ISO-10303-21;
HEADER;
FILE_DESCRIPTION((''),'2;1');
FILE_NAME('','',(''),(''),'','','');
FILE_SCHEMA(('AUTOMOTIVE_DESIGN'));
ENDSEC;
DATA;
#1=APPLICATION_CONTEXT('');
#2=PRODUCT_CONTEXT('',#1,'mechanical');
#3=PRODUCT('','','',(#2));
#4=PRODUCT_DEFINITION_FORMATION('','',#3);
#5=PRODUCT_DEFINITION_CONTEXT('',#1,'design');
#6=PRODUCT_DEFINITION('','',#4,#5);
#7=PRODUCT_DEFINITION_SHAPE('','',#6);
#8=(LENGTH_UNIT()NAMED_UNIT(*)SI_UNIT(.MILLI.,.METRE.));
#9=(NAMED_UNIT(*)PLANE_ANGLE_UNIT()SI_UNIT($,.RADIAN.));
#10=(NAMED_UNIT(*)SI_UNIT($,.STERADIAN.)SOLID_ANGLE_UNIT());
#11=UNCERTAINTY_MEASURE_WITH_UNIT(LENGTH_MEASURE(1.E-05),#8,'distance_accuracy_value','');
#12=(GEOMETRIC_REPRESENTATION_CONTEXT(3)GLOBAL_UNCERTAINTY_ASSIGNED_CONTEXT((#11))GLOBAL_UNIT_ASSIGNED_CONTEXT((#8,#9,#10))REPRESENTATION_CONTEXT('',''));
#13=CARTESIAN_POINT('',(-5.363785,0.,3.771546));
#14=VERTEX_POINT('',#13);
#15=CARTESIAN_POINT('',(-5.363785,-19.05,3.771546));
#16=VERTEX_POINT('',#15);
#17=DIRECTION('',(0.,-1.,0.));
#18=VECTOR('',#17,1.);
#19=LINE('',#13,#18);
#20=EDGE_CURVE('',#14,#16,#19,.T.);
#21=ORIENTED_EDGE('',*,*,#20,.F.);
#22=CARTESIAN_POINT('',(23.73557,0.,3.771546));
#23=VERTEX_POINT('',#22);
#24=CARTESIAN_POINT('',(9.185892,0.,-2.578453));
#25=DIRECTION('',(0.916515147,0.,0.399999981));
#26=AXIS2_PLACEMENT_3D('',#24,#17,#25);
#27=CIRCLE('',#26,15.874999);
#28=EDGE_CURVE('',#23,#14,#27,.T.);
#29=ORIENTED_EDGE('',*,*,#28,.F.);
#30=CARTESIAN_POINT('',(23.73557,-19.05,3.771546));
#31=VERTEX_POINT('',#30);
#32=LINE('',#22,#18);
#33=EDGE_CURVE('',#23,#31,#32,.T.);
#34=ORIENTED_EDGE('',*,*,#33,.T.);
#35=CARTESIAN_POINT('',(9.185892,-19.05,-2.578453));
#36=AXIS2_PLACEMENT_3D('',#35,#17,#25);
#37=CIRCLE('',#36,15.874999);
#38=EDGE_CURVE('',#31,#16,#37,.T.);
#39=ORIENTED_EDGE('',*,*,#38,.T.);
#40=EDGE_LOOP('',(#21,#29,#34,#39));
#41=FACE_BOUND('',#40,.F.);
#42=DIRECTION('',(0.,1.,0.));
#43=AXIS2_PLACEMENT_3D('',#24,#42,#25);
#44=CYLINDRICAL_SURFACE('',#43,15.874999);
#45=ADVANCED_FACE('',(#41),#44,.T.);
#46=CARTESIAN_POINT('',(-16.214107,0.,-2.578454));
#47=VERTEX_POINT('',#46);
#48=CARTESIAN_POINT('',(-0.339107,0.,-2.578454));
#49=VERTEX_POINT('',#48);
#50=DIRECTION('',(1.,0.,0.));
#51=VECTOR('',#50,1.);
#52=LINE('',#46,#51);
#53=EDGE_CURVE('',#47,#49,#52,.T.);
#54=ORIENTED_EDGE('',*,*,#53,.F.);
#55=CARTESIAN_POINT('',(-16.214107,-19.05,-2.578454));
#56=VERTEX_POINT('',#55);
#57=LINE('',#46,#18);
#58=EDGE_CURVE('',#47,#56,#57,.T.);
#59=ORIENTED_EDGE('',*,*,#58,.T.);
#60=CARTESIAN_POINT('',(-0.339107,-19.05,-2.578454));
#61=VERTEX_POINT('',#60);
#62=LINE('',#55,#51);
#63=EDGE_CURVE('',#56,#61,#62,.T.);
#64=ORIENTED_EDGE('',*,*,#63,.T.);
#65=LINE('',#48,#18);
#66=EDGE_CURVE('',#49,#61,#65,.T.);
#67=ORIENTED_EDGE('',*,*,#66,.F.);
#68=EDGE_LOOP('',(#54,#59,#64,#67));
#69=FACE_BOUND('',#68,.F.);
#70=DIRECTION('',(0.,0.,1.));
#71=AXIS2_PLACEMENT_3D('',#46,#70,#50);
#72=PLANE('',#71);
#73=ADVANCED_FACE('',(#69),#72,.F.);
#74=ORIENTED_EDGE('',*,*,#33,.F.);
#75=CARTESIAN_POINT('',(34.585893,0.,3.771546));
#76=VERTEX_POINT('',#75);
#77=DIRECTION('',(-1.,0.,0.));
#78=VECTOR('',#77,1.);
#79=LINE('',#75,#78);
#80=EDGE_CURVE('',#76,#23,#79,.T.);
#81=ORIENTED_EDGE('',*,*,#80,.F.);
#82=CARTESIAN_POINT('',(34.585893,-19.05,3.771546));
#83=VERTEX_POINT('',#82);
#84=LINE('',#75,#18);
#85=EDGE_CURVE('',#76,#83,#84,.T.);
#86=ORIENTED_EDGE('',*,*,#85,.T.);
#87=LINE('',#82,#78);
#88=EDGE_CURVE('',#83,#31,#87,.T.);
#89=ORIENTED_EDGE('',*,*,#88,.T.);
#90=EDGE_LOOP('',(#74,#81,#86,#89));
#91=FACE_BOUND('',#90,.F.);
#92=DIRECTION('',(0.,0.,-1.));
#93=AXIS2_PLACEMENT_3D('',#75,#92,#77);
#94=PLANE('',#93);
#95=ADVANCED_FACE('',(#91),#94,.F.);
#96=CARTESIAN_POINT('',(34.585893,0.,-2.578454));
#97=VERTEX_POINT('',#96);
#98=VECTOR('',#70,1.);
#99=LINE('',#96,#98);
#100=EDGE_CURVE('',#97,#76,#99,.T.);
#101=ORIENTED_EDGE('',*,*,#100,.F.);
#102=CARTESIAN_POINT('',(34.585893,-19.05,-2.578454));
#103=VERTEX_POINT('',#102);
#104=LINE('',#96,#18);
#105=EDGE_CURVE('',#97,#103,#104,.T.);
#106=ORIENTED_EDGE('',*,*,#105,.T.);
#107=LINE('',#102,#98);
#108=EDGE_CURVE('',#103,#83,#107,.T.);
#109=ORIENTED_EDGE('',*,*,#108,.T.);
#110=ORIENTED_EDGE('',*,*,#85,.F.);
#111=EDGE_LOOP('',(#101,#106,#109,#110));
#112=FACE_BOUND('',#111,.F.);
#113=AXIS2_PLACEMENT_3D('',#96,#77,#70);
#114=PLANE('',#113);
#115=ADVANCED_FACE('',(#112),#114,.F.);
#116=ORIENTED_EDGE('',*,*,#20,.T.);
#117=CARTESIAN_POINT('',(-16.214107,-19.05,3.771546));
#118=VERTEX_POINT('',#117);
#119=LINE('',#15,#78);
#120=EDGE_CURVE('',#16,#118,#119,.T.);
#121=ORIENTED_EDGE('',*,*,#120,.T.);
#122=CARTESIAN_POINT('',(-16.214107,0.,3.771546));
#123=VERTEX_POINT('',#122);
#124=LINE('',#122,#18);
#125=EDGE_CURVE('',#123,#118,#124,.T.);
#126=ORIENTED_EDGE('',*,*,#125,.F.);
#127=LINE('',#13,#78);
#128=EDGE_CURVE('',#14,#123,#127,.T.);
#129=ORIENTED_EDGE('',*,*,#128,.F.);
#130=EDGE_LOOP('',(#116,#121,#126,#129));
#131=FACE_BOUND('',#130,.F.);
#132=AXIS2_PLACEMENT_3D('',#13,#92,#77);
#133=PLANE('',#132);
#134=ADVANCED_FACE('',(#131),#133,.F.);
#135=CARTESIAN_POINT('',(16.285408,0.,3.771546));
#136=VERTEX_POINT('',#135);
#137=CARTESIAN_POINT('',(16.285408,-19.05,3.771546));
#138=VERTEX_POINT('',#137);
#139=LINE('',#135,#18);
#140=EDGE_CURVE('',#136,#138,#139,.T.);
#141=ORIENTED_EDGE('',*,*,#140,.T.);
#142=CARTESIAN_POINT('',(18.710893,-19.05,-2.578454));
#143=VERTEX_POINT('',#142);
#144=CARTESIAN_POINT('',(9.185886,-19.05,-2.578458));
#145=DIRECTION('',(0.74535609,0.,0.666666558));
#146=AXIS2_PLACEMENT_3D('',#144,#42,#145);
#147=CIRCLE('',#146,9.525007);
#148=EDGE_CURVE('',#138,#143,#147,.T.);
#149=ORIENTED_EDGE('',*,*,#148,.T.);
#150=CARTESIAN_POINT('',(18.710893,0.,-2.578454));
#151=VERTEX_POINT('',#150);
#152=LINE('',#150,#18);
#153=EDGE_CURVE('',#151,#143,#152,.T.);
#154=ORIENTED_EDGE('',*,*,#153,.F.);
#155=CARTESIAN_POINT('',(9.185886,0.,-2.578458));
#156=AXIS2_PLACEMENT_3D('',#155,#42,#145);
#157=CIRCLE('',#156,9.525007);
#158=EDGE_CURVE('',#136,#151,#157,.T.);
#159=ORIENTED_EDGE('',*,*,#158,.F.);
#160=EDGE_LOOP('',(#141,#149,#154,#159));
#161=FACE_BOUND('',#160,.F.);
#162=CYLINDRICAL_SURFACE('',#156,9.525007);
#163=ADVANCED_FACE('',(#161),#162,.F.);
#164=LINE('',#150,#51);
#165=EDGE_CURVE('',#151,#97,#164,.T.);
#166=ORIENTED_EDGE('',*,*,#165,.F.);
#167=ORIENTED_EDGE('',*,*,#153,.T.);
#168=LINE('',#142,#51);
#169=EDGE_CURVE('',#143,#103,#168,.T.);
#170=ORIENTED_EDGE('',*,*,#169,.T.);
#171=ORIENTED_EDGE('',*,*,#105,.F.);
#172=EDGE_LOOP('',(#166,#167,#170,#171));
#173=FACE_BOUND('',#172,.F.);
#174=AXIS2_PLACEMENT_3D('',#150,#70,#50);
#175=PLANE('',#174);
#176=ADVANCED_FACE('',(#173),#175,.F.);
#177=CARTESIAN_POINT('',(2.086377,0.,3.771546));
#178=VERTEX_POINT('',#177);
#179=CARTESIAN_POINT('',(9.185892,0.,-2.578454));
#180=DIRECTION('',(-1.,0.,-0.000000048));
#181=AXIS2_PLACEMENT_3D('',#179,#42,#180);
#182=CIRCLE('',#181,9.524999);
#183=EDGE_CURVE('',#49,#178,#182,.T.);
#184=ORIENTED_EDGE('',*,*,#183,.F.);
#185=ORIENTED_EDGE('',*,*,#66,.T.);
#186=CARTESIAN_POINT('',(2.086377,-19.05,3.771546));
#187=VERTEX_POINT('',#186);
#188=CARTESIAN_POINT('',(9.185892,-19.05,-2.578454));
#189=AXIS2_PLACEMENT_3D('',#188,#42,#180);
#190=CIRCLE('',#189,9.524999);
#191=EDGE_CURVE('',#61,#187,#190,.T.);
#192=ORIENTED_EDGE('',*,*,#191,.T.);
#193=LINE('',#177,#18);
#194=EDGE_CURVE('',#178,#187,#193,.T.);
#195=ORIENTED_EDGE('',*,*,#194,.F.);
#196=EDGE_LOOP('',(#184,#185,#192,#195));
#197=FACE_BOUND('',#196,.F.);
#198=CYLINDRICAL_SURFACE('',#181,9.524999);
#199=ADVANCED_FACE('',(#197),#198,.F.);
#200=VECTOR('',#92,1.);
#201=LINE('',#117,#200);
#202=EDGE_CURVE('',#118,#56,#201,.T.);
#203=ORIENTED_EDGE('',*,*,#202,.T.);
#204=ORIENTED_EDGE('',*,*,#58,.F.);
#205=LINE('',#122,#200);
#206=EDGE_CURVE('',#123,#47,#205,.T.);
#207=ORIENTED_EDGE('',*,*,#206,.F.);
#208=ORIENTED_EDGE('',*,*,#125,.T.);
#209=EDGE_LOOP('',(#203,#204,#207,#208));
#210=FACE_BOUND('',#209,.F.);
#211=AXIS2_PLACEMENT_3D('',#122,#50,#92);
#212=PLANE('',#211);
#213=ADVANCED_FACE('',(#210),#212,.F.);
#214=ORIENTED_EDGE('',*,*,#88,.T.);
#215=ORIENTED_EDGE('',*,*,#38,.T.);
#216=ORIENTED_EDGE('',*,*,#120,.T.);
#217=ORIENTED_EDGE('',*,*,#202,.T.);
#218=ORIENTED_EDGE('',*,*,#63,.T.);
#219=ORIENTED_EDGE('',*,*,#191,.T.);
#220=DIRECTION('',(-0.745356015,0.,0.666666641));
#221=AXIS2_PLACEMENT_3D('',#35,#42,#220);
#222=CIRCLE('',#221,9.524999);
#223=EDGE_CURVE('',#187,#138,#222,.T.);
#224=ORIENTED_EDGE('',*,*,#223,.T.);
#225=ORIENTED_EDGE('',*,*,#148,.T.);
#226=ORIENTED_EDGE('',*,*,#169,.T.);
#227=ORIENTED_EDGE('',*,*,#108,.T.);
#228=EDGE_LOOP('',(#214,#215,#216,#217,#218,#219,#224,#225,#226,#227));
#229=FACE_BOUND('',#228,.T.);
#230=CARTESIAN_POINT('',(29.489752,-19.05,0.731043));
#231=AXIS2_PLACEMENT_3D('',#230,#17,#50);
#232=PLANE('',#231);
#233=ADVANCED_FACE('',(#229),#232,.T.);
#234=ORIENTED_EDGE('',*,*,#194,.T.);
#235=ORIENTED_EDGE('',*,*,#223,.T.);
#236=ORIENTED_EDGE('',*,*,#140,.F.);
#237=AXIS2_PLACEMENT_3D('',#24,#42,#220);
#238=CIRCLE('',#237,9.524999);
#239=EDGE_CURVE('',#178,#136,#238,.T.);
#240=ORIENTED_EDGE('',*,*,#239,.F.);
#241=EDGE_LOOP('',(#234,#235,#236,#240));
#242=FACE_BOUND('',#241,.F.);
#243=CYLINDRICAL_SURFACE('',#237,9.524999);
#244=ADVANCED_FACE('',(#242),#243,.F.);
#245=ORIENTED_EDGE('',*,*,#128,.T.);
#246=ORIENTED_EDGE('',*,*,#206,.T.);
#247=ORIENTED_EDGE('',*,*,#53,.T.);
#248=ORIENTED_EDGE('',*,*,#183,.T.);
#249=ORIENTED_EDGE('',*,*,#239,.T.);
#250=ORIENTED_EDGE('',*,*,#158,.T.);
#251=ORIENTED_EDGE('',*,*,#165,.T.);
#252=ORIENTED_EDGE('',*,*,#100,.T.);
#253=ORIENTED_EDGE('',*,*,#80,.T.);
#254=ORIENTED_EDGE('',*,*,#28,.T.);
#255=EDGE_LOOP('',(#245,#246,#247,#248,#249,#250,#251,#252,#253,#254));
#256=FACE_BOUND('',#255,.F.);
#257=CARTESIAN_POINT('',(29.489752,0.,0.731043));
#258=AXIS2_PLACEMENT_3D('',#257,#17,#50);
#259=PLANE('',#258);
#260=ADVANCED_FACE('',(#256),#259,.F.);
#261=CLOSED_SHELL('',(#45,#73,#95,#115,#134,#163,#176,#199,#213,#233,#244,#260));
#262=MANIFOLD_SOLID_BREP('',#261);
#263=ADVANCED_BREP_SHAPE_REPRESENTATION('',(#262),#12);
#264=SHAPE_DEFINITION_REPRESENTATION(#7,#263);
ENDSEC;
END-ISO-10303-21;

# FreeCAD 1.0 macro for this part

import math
import FreeCAD as App
import Part
import Sketcher
Q = App.Units.Quantity

doc = App.newDocument("Part")
params = doc.addObject("Spreadsheet::Sheet", "Params")
for row, (alias, value) in enumerate([
    ("sketch1_radius", "0.625 in"),
    ("sketch1_radius2", "0.375 in"),
    ("sketch1_height", "0.25 in"),
    ("pad1_length", "0.75 in"),
], start=1):
    params.set(f"A{row}", alias)
    params.set(f"B{row}", "=" + value)
    params.setAlias(f"B{row}", alias)

body = doc.addObject("PartDesign::Body", "Body")

# Sketch on XZ plane
sketch1 = doc.addObject("Sketcher::SketchObject", "Sketch")
body.addObject(sketch1)
sketch1.AttachmentSupport = (doc.XZ_Plane, [""])
sketch1.MapMode = "FlatFace"
sketch1.addGeometry(Part.LineSegment(App.Vector(34.585893, -2.578454, 0), App.Vector(34.585893, 3.771546, 0)), False)
sketch1.addGeometry(Part.LineSegment(App.Vector(34.585893, 3.771546, 0), App.Vector(23.73557, 3.771546, 0)), False)
sketch1.addGeometry(Part.ArcOfCircle(Part.Circle(App.Vector(9.185892, -2.578453, 0), App.Vector(0, 0, 1), 15.874999), math.radians(23.578177), math.radians(156.421823)), False)
sketch1.addGeometry(Part.LineSegment(App.Vector(-5.363785, 3.771546, 0), App.Vector(-16.214107, 3.771546, 0)), False)
sketch1.addGeometry(Part.LineSegment(App.Vector(-16.214107, 3.771546, 0), App.Vector(-16.214107, -2.578454, 0)), False)
sketch1.addGeometry(Part.LineSegment(App.Vector(-16.214107, -2.578454, 0), App.Vector(-0.339107, -2.578454, 0)), False)
sketch1.addGeometry(Part.ArcOfCircle(Part.Circle(App.Vector(9.185892, -2.578454, 0), App.Vector(0, 0, 1), 9.524999), math.radians(138.189685), math.radians(180.000003)), False)
sketch1.addGeometry(Part.ArcOfCircle(Part.Circle(App.Vector(9.185892, -2.578453, 0), App.Vector(0, 0, 1), 9.524999), math.radians(41.810313), math.radians(138.189687)), False)
sketch1.addGeometry(Part.ArcOfCircle(Part.Circle(App.Vector(9.185886, -2.578458, 0), App.Vector(0, 0, 1), 9.525007), math.radians(0.000021), math.radians(41.810307)), False)
sketch1.addGeometry(Part.LineSegment(App.Vector(18.710893, -2.578454, 0), App.Vector(34.585893, -2.578454, 0)), False)
sketch1.addConstraint(Sketcher.Constraint("Coincident", 0, 2, 1, 1))
sketch1.addConstraint(Sketcher.Constraint("Coincident", 1, 2, 2, 1))
sketch1.addConstraint(Sketcher.Constraint("Coincident", 2, 2, 3, 1))
sketch1.addConstraint(Sketcher.Constraint("Coincident", 3, 2, 4, 1))
sketch1.addConstraint(Sketcher.Constraint("Coincident", 4, 2, 5, 1))
sketch1.addConstraint(Sketcher.Constraint("Coincident", 5, 2, 6, 2))
sketch1.addConstraint(Sketcher.Constraint("Tangent", 6, 1, 7, 2))
sketch1.addConstraint(Sketcher.Constraint("Tangent", 7, 1, 8, 2))
sketch1.addConstraint(Sketcher.Constraint("Coincident", 8, 1, 9, 1))
sketch1.addConstraint(Sketcher.Constraint("Coincident", 9, 2, 0, 1))
sketch1.addConstraint(Sketcher.Constraint("Vertical", 0))
sketch1.addConstraint(Sketcher.Constraint("Horizontal", 1))
sketch1.addConstraint(Sketcher.Constraint("Horizontal", 3))
sketch1.addConstraint(Sketcher.Constraint("Vertical", 4))
sketch1.addConstraint(Sketcher.Constraint("Horizontal", 5))
sketch1.addConstraint(Sketcher.Constraint("Horizontal", 9))
sketch1.addConstraint(Sketcher.Constraint("Coincident", 6, 3, 2, 3))
sketch1.addConstraint(Sketcher.Constraint("Coincident", 8, 3, 2, 3))
sketch1.addConstraint(Sketcher.Constraint("Horizontal", 1, 2, 2, 2))
sketch1.addConstraint(Sketcher.Constraint("Horizontal", 7, 3, 4, 2))
sketch1.addConstraint(Sketcher.Constraint("Horizontal", 3, 2, 6, 1))
sketch1.addConstraint(Sketcher.Constraint("Horizontal", 6, 1, 7, 1))
sketch1.addConstraint(Sketcher.Constraint("Horizontal", 5, 2, 8, 1))
sketch1.addConstraint(Sketcher.Constraint("Equal", 1, 3))
sketch1.addConstraint(Sketcher.Constraint("Radius", 2, Q("0.625 in")))
sketch1.addConstraint(Sketcher.Constraint("Radius", 6, Q("0.375 in")))
sketch1.addConstraint(Sketcher.Constraint("DistanceX", 7, 3, 0, 2, Q("1 in")))
sketch1.addConstraint(Sketcher.Constraint("DistanceY", 0, 1, 0, 2, Q("0.25 in")))
sketch1.addConstraint(Sketcher.Constraint("DistanceX", -1, 1, 1, 2, 23.73557))
sketch1.addConstraint(Sketcher.Constraint("DistanceY", 2, 3, -1, 1, 2.578453))
sketch1.setExpression("Constraints[24]", "Params.sketch1_radius")
sketch1.setExpression("Constraints[25]", "Params.sketch1_radius2")
sketch1.setExpression("Constraints[27]", "Params.sketch1_height")
pad1 = doc.addObject("PartDesign::Pad", "Pad")
body.addObject(pad1)
pad1.Profile = sketch1
pad1.setExpression("Length", "Params.pad1_length")

doc.recompute()
